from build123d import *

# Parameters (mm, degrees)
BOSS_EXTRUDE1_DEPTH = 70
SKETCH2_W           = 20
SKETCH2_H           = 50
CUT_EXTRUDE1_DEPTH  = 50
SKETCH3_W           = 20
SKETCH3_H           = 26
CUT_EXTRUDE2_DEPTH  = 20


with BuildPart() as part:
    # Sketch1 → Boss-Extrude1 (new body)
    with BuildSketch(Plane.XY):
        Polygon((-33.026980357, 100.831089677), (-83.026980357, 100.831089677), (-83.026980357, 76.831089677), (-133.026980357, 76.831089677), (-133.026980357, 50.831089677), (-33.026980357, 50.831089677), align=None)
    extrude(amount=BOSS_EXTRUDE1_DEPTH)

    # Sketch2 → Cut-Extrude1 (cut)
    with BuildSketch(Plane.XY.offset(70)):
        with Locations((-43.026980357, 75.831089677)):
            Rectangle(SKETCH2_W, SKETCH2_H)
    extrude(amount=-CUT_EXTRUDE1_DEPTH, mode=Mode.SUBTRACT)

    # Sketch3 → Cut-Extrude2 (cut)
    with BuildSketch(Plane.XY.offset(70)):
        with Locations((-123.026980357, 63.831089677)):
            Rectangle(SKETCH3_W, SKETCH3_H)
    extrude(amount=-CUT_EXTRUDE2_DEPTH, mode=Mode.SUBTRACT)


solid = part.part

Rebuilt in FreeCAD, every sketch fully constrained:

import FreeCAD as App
import Part
import Sketcher
Q = App.Units.Quantity

doc = App.newDocument("Part")
body = doc.addObject("PartDesign::Body", "Body")

# Sketch on XY plane
sketch1 = body.newObject("Sketcher::SketchObject", "Sketch")
sketch1.AttachmentSupport = (doc.getObject("XY_Plane"), [""])
sketch1.MapMode = "FlatFace"
sketch1.addGeometry([
    Part.LineSegment(App.Vector(-33, 101, 0), App.Vector(-83, 101, 0)),  # 0
    Part.LineSegment(App.Vector(-83, 101, 0), App.Vector(-83, 77, 0)),  # 1
    Part.LineSegment(App.Vector(-83, 77, 0), App.Vector(-133, 77, 0)),  # 2
    Part.LineSegment(App.Vector(-133, 77, 0), App.Vector(-133, 51, 0)),  # 3
    Part.LineSegment(App.Vector(-133, 51, 0), App.Vector(-33, 51, 0)),  # 4
    Part.LineSegment(App.Vector(-33, 51, 0), App.Vector(-33, 101, 0)),  # 5
], False)
sketch1.addConstraint([
    Sketcher.Constraint("Coincident", 0, 2, 1, 1),
    Sketcher.Constraint("Coincident", 1, 2, 2, 1),
    Sketcher.Constraint("Coincident", 2, 2, 3, 1),
    Sketcher.Constraint("Coincident", 3, 2, 4, 1),
    Sketcher.Constraint("Coincident", 4, 2, 5, 1),
    Sketcher.Constraint("Coincident", 5, 2, 0, 1),
    Sketcher.Constraint("Horizontal", 0),
    Sketcher.Constraint("Vertical", 1),
    Sketcher.Constraint("Horizontal", 2),
    Sketcher.Constraint("Vertical", 3),
    Sketcher.Constraint("Horizontal", 4),
    Sketcher.Constraint("Vertical", 5),
    Sketcher.Constraint("Equal", 0, 2),
    Sketcher.Constraint("Equal", 2, 5),
    Sketcher.Constraint("DistanceX", 0, 2, 0, 1, Q("50 mm")),
    Sketcher.Constraint("DistanceY", 1, 2, 1, 1, Q("24 mm")),
    Sketcher.Constraint("DistanceX", 0, 2, -1, 1, Q("83.02698 mm")),
    Sketcher.Constraint("DistanceY", -1, 1, 0, 2, Q("100.83109 mm")),
])
pad1 = body.newObject("PartDesign::Pad", "Pad")
pad1.Profile = sketch1
pad1.Length = 70

# Sketch on XY plane
sketch2 = body.newObject("Sketcher::SketchObject", "Sketch001")
sketch2.AttachmentSupport = (doc.getObject("XY_Plane"), [""])
sketch2.MapMode = "FlatFace"
sketch2.AttachmentOffset = App.Placement(App.Vector(0, 0, 70), App.Rotation())
sketch2.addGeometry([
    Part.LineSegment(App.Vector(-53, 101, 0), App.Vector(-53, 51, 0)),
    Part.LineSegment(App.Vector(-53, 51, 0), App.Vector(-33, 51, 0)),
    Part.LineSegment(App.Vector(-33, 51, 0), App.Vector(-33, 101, 0)),
    Part.LineSegment(App.Vector(-33, 101, 0), App.Vector(-53, 101, 0)),
], False)
sketch2.addConstraint([
    Sketcher.Constraint("Coincident", 0, 2, 1, 1),
    Sketcher.Constraint("Coincident", 1, 2, 2, 1),
    Sketcher.Constraint("Coincident", 2, 2, 3, 1),
    Sketcher.Constraint("Coincident", 3, 2, 0, 1),
    Sketcher.Constraint("Vertical", 0),
    Sketcher.Constraint("Horizontal", 1),
    Sketcher.Constraint("Vertical", 2),
    Sketcher.Constraint("Horizontal", 3),
    Sketcher.Constraint("DistanceX", 1, 1, 1, 2, Q("20 mm")),
    Sketcher.Constraint("DistanceY", 0, 2, 0, 1, Q("50 mm")),
    Sketcher.Constraint("DistanceX", 0, 2, -1, 1, Q("53.02698 mm")),
    Sketcher.Constraint("DistanceY", -1, 1, 0, 2, Q("50.83109 mm")),
])
pocket1 = body.newObject("PartDesign::Pocket", "Pocket")
pocket1.Profile = sketch2
pocket1.Length = 50

# Sketch on XY plane
sketch3 = body.newObject("Sketcher::SketchObject", "Sketch002")
sketch3.AttachmentSupport = (doc.getObject("XY_Plane"), [""])
sketch3.MapMode = "FlatFace"
sketch3.AttachmentOffset = App.Placement(App.Vector(0, 0, 70), App.Rotation())
sketch3.addGeometry([
    Part.LineSegment(App.Vector(-133, 77, 0), App.Vector(-133, 51, 0)),
    Part.LineSegment(App.Vector(-133, 51, 0), App.Vector(-113, 51, 0)),
    Part.LineSegment(App.Vector(-113, 51, 0), App.Vector(-113, 77, 0)),
    Part.LineSegment(App.Vector(-113, 77, 0), App.Vector(-133, 77, 0)),
], False)
sketch3.addConstraint([
    Sketcher.Constraint("Coincident", 0, 2, 1, 1),
    Sketcher.Constraint("Coincident", 1, 2, 2, 1),
    Sketcher.Constraint("Coincident", 2, 2, 3, 1),
    Sketcher.Constraint("Coincident", 3, 2, 0, 1),
    Sketcher.Constraint("Vertical", 0),
    Sketcher.Constraint("Horizontal", 1),
    Sketcher.Constraint("Vertical", 2),
    Sketcher.Constraint("Horizontal", 3),
    Sketcher.Constraint("DistanceX", 1, 1, 1, 2, Q("20 mm")),
    Sketcher.Constraint("DistanceY", 0, 2, 0, 1, Q("26 mm")),
    Sketcher.Constraint("DistanceX", 0, 2, -1, 1, Q("133.02698 mm")),
    Sketcher.Constraint("DistanceY", -1, 1, 0, 2, Q("50.83109 mm")),
])
pocket2 = body.newObject("PartDesign::Pocket", "Pocket001")
pocket2.Profile = sketch3
pocket2.Length = 20

doc.recompute()
